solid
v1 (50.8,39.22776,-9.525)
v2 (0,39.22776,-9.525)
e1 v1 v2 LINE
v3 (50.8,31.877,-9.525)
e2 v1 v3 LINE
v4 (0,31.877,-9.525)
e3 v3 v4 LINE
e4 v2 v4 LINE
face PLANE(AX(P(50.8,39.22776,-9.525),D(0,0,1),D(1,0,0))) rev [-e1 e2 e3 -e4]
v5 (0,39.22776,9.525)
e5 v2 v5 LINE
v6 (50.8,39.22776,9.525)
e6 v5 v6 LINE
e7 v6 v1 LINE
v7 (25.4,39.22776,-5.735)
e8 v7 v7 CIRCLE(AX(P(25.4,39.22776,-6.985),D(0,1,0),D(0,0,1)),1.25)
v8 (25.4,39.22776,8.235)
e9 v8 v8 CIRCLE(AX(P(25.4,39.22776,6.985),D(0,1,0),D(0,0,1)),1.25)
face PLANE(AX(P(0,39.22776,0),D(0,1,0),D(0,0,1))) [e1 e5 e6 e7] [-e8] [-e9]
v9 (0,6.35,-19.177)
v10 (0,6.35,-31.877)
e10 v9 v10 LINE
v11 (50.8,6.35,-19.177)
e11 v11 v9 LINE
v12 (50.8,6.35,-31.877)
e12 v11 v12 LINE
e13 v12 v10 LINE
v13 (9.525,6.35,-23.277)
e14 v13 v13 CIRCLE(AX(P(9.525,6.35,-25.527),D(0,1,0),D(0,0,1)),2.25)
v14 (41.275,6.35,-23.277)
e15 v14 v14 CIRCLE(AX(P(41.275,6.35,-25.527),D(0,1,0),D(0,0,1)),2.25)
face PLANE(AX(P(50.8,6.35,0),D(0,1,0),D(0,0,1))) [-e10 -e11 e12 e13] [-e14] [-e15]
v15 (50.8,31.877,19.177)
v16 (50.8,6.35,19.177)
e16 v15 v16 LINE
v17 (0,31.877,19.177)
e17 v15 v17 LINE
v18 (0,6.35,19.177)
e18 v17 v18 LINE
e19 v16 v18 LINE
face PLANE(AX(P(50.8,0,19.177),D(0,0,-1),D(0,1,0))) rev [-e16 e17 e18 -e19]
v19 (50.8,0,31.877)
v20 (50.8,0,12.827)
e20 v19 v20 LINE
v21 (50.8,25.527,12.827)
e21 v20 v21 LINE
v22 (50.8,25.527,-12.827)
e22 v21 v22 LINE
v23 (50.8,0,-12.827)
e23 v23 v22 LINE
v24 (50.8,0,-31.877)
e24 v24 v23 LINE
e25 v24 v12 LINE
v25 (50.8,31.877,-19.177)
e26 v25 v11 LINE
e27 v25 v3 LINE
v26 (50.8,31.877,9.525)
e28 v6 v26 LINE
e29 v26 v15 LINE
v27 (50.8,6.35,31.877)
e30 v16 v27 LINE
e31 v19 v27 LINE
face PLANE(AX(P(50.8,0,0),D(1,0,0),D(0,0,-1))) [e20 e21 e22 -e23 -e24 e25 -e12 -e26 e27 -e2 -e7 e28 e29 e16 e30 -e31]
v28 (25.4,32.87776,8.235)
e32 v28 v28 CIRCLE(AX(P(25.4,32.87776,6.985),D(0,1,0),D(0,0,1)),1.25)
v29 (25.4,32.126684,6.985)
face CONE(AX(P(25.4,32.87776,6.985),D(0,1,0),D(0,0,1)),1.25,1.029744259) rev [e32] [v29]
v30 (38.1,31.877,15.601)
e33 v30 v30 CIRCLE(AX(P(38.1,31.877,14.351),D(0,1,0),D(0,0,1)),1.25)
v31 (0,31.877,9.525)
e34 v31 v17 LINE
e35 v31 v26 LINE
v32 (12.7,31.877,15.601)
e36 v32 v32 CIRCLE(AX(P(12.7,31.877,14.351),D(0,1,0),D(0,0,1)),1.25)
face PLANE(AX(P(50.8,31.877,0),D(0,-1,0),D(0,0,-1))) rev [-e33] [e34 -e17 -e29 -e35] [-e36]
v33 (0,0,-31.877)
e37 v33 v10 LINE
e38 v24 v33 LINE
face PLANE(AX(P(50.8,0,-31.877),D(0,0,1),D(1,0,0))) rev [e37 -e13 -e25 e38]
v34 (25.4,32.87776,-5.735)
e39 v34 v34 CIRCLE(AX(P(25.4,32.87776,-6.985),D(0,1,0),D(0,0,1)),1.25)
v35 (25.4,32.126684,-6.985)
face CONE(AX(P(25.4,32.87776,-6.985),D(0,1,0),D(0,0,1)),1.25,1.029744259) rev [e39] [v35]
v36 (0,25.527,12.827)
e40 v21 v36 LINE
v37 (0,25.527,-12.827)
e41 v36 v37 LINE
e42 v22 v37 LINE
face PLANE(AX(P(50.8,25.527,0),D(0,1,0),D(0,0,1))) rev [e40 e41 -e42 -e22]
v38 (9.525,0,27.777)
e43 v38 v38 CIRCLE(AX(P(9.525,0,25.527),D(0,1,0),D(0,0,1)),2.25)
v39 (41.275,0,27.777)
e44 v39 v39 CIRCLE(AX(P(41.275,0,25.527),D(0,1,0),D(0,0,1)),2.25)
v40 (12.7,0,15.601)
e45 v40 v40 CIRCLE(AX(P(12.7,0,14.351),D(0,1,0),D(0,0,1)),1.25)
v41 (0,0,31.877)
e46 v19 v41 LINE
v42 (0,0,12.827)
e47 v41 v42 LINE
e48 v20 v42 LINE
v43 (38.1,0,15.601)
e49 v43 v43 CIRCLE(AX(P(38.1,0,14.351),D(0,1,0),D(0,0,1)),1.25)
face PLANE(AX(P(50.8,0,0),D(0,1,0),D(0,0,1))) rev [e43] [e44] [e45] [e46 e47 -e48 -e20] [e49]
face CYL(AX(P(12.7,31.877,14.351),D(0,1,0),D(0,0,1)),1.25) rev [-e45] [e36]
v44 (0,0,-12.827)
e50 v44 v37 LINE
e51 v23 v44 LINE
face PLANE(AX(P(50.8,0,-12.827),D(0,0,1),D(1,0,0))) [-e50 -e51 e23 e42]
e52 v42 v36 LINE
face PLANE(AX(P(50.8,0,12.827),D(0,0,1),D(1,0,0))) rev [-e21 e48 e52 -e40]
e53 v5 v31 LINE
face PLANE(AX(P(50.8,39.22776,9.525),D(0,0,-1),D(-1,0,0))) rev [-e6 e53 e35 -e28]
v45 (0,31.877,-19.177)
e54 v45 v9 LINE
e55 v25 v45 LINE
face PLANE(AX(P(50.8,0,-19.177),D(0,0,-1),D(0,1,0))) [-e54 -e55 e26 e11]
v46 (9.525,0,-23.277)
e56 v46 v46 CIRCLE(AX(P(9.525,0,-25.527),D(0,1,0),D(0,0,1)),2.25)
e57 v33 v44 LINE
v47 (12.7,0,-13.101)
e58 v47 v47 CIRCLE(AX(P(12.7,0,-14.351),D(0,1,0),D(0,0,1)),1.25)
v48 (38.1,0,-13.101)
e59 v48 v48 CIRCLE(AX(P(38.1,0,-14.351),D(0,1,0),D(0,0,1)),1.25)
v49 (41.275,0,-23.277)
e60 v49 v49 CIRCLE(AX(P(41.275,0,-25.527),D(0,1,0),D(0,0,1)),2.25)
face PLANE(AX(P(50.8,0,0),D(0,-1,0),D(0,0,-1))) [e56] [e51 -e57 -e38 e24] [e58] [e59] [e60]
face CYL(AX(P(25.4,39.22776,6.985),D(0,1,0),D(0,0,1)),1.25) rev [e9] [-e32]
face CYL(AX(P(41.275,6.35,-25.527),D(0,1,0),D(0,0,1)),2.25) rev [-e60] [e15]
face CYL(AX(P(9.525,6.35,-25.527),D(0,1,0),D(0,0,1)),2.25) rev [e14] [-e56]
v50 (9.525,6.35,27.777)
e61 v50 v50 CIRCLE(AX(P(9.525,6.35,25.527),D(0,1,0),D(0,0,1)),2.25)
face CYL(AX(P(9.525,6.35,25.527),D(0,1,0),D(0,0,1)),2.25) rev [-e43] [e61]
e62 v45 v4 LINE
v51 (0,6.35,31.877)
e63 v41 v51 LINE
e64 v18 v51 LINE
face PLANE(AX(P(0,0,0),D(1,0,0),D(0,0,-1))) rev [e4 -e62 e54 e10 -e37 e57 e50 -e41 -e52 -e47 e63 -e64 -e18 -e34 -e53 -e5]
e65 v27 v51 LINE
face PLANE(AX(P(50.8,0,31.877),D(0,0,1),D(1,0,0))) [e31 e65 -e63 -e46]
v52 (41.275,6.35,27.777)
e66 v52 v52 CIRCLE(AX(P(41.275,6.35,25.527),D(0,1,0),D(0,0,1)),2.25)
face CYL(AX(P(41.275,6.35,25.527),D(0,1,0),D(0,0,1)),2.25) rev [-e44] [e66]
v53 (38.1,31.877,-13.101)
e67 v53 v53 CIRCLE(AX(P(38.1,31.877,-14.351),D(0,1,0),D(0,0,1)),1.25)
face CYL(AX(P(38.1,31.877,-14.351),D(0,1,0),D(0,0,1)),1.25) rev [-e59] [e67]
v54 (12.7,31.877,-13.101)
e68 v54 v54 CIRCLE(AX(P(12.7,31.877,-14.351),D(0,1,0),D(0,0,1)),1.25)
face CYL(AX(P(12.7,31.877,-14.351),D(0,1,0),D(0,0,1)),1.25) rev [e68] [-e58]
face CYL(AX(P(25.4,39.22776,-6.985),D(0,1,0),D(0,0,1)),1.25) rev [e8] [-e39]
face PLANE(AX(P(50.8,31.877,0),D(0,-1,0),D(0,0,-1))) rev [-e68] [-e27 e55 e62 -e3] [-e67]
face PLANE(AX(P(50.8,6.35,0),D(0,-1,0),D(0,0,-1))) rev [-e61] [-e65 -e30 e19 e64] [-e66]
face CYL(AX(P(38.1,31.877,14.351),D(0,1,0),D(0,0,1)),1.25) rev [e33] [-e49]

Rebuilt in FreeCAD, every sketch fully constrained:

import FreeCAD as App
import Part
import Sketcher
from FreeCAD import Vector
Q = App.Units.Quantity

doc = App.newDocument("Part")
body = doc.addObject("PartDesign::Body", "Body")

# Sketch on YZ plane
sketch1 = body.newObject("Sketcher::SketchObject", "Sketch")
sketch1.AttachmentSupport = (doc.getObject("YZ_Plane"), [""])
sketch1.MapMode = "FlatFace"
sketch1.addGeometry([
    Part.LineSegment(Vector(32, -19, 0), Vector(32, 19, 0)),  # 0
    Part.LineSegment(Vector(32, 19, 0), Vector(6, 19, 0)),  # 1
    Part.LineSegment(Vector(6, 19, 0), Vector(6, 32, 0)),  # 2
    Part.LineSegment(Vector(6, 32, 0), Vector(0, 32, 0)),  # 3
    Part.LineSegment(Vector(0, 32, 0), Vector(0, 13, 0)),  # 4
    Part.LineSegment(Vector(0, 13, 0), Vector(26, 13, 0)),  # 5
    Part.LineSegment(Vector(26, 13, 0), Vector(26, -13, 0)),  # 6
    Part.LineSegment(Vector(26, -13, 0), Vector(0, -13, 0)),  # 7
    Part.LineSegment(Vector(0, -13, 0), Vector(0, -32, 0)),  # 8
    Part.LineSegment(Vector(0, -32, 0), Vector(6, -32, 0)),  # 9
    Part.LineSegment(Vector(6, -32, 0), Vector(6, -19, 0)),  # 10
    Part.LineSegment(Vector(6, -19, 0), Vector(32, -19, 0)),  # 11
], False)
sketch1.addConstraint([
    Sketcher.Constraint("Coincident", 0, 2, 1, 1),
    Sketcher.Constraint("Coincident", 1, 2, 2, 1),
    Sketcher.Constraint("Coincident", 2, 2, 3, 1),
    Sketcher.Constraint("Coincident", 3, 2, 4, 1),
    Sketcher.Constraint("Coincident", 4, 2, 5, 1),
    Sketcher.Constraint("Coincident", 5, 2, 6, 1),
    Sketcher.Constraint("Coincident", 6, 2, 7, 1),
    Sketcher.Constraint("Coincident", 7, 2, 8, 1),
    Sketcher.Constraint("Coincident", 8, 2, 9, 1),
    Sketcher.Constraint("Coincident", 9, 2, 10, 1),
    Sketcher.Constraint("Coincident", 10, 2, 11, 1),
    Sketcher.Constraint("Coincident", 11, 2, 0, 1),
    Sketcher.Constraint("Vertical", 0),
    Sketcher.Constraint("Horizontal", 1),
    Sketcher.Constraint("Vertical", 2),
    Sketcher.Constraint("Horizontal", 3),
    Sketcher.Constraint("Vertical", 4),
    Sketcher.Constraint("Horizontal", 5),
    Sketcher.Constraint("Vertical", 6),
    Sketcher.Constraint("Horizontal", 7),
    Sketcher.Constraint("Vertical", 8),
    Sketcher.Constraint("Horizontal", 9),
    Sketcher.Constraint("Vertical", 10),
    Sketcher.Constraint("Horizontal", 11),
    Sketcher.Constraint("Symmetric", 4, 2, 7, 2, -1, 1),
    Sketcher.Constraint("Symmetric", 3, 2, 8, 2, -1),
    Sketcher.Constraint("Symmetric", 1, 2, 10, 2, -1),
    Sketcher.Constraint("Equal", 1, 5),
    Sketcher.Constraint("DistanceY", 2, 1, 2, 2, Q("0.5 in")),
    Sketcher.Constraint("DistanceX", 3, 2, 3, 1, Q("0.25 in")),
    Sketcher.Constraint("DistanceY", 0, 1, 0, 2, Q("1.51 in")),
    Sketcher.Constraint("DistanceY", 4, 2, 4, 1, Q("0.75 in")),
    Sketcher.Constraint("DistanceX", 1, 2, 1, 1, Q("1.005 in")),
])
pad1 = body.newObject("PartDesign::Pad", "Pad")
pad1.Profile = sketch1
pad1.Length = Q("2 in")

# Sketch on XZ plane
sketch2 = body.newObject("Sketcher::SketchObject", "Sketch001")
sketch2.AttachmentSupport = (doc.getObject("XZ_Plane"), [""])
sketch2.MapMode = "FlatFace"
sketch2.AttachmentOffset = App.Placement(Vector(0, 0, -1.255 * 25.4), App.Rotation())
sketch2.addGeometry([
    Part.LineSegment(Vector(0, -10, 0), Vector(0, 10, 0)),
    Part.LineSegment(Vector(0, 10, 0), Vector(51, 10, 0)),
    Part.LineSegment(Vector(51, 10, 0), Vector(51, -10, 0)),
    Part.LineSegment(Vector(51, -10, 0), Vector(0, -10, 0)),
], False)
sketch2.addConstraint([
    Sketcher.Constraint("Coincident", 0, 2, 1, 1),
    Sketcher.Constraint("Coincident", 1, 2, 2, 1),
    Sketcher.Constraint("Coincident", 2, 2, 3, 1),
    Sketcher.Constraint("Coincident", 3, 2, 0, 1),
    Sketcher.Constraint("Vertical", 0),
    Sketcher.Constraint("Horizontal", 1),
    Sketcher.Constraint("Vertical", 2),
    Sketcher.Constraint("Horizontal", 3),
    Sketcher.Constraint("Symmetric", 0, 2, 3, 2, -1, 1),
    Sketcher.Constraint("DistanceX", 1, 1, 1, 2, Q("2 in")),
    Sketcher.Constraint("DistanceY", 0, 1, 0, 2, Q("0.75 in")),
])
pad2 = body.newObject("PartDesign::Pad", "Pad001")
pad2.Profile = sketch2
pad2.Length = Q("0.2894 in")
pad2.Reversed = True

# Sketch on XZ plane
sketch3 = body.newObject("Sketcher::SketchObject", "Sketch002")
sketch3.AttachmentSupport = (doc.getObject("XZ_Plane"), [""])
sketch3.MapMode = "FlatFace"
sketch3.AttachmentOffset = App.Placement(Vector(0, 0, -1.5444 * 25.4), App.Rotation())
sketch3.addGeometry([
    Part.Circle(Vector(25.4, 7, 0), Vector(0, 0, 1), 1.2),
    Part.Circle(Vector(25.4, -7, 0), Vector(0, 0, 1), 1.2),
], False)
sketch3.addConstraint([
    Sketcher.Constraint("Equal", 0, 1),
    Sketcher.Constraint("Symmetric", 0, 3, 1, 3, -1),
    Sketcher.Constraint("DistanceX", -1, 1, 0, 3, Q("1 in")),
    Sketcher.Constraint("Diameter", 0, 2.5),
    Sketcher.Constraint("DistanceY", 1, 3, 0, 3, Q("0.55 in")),
])
doc.recompute()
hole = body.newObject("PartDesign::Hole", "Hole")
hole.Profile = sketch3
hole.ThreadType = "None"
hole.Diameter = 2.5
hole.DepthType = "Dimension"
hole.Depth = Q("0.25 in")
hole.DrillPoint = "Angled"
hole.DrillPointAngle = 118
hole.Reversed = True

# Sketch on XZ plane
sketch4 = body.newObject("Sketcher::SketchObject", "Sketch003")
sketch4.AttachmentSupport = (doc.getObject("XZ_Plane"), [""])
sketch4.MapMode = "FlatFace"
sketch4.AttachmentOffset = App.Placement(Vector(0, 0, -1.255 * 25.4), App.Rotation())
sketch4.addGeometry([
    Part.Circle(Vector(38.1, -14.4, 0), Vector(0, 0, 1), 1.2),
    Part.Circle(Vector(12.7, -14.4, 0), Vector(0, 0, 1), 1.2),
], False)
sketch4.addConstraint([
    Sketcher.Constraint("Equal", 0, 1),
    Sketcher.Constraint("Horizontal", 0, 3, 1, 3),
    Sketcher.Constraint("DistanceX", 1, 3, 0, 3, Q("1 in")),
    Sketcher.Constraint("DistanceX", -1, 1, 0, 3, Q("1.5 in")),
    Sketcher.Constraint("Diameter", 0, 2.5),
    Sketcher.Constraint("DistanceY", 0, 3, -1, 1, Q("0.565 in")),
])
doc.recompute()
hole2 = body.newObject("PartDesign::Hole", "Hole001")
hole2.Profile = sketch4
hole2.ThreadType = "None"
hole2.Diameter = 2.5
hole2.DepthType = "ThroughAll"
hole2.Reversed = True
doc.recompute()

mirrored = body.newObject("PartDesign::Mirrored", "Mirrored")
mirrored.Originals = [hole2]
mirrored.MirrorPlane = (doc.getObject("XY_Plane"), [""])
body.Tip = mirrored

# Sketch on XZ plane
sketch5 = body.newObject("Sketcher::SketchObject", "Sketch004")
sketch5.AttachmentSupport = (doc.getObject("XZ_Plane"), [""])
sketch5.MapMode = "FlatFace"
sketch5.AttachmentOffset = App.Placement(Vector(0, 0, -0.25 * 25.4), App.Rotation())
sketch5.addGeometry([
    Part.Circle(Vector(41.3, -25.5, 0), Vector(0, 0, 1), 2.2),
    Part.Circle(Vector(9.5, -25.5, 0), Vector(0, 0, 1), 2.2),
], False)
sketch5.addConstraint([
    Sketcher.Constraint("Equal", 0, 1),
    Sketcher.Constraint("Horizontal", 0, 3, 1, 3),
    Sketcher.Constraint("Diameter", 0, 4.5),
    Sketcher.Constraint("DistanceX", 1, 3, 0, 3, Q("1.25 in")),
    Sketcher.Constraint("DistanceX", -1, 1, 0, 3, Q("1.625 in")),
    Sketcher.Constraint("DistanceY", 0, 3, -1, 1, Q("1.005 in")),
])
doc.recompute()
hole3 = body.newObject("PartDesign::Hole", "Hole002")
hole3.Profile = sketch5
hole3.ThreadType = "None"
hole3.Diameter = 4.5
hole3.DepthType = "ThroughAll"
hole3.Reversed = True
doc.recompute()

mirrored2 = body.newObject("PartDesign::Mirrored", "Mirrored001")
mirrored2.Originals = [hole3]
mirrored2.MirrorPlane = (doc.getObject("XY_Plane"), [""])
body.Tip = mirrored2

doc.recompute()
